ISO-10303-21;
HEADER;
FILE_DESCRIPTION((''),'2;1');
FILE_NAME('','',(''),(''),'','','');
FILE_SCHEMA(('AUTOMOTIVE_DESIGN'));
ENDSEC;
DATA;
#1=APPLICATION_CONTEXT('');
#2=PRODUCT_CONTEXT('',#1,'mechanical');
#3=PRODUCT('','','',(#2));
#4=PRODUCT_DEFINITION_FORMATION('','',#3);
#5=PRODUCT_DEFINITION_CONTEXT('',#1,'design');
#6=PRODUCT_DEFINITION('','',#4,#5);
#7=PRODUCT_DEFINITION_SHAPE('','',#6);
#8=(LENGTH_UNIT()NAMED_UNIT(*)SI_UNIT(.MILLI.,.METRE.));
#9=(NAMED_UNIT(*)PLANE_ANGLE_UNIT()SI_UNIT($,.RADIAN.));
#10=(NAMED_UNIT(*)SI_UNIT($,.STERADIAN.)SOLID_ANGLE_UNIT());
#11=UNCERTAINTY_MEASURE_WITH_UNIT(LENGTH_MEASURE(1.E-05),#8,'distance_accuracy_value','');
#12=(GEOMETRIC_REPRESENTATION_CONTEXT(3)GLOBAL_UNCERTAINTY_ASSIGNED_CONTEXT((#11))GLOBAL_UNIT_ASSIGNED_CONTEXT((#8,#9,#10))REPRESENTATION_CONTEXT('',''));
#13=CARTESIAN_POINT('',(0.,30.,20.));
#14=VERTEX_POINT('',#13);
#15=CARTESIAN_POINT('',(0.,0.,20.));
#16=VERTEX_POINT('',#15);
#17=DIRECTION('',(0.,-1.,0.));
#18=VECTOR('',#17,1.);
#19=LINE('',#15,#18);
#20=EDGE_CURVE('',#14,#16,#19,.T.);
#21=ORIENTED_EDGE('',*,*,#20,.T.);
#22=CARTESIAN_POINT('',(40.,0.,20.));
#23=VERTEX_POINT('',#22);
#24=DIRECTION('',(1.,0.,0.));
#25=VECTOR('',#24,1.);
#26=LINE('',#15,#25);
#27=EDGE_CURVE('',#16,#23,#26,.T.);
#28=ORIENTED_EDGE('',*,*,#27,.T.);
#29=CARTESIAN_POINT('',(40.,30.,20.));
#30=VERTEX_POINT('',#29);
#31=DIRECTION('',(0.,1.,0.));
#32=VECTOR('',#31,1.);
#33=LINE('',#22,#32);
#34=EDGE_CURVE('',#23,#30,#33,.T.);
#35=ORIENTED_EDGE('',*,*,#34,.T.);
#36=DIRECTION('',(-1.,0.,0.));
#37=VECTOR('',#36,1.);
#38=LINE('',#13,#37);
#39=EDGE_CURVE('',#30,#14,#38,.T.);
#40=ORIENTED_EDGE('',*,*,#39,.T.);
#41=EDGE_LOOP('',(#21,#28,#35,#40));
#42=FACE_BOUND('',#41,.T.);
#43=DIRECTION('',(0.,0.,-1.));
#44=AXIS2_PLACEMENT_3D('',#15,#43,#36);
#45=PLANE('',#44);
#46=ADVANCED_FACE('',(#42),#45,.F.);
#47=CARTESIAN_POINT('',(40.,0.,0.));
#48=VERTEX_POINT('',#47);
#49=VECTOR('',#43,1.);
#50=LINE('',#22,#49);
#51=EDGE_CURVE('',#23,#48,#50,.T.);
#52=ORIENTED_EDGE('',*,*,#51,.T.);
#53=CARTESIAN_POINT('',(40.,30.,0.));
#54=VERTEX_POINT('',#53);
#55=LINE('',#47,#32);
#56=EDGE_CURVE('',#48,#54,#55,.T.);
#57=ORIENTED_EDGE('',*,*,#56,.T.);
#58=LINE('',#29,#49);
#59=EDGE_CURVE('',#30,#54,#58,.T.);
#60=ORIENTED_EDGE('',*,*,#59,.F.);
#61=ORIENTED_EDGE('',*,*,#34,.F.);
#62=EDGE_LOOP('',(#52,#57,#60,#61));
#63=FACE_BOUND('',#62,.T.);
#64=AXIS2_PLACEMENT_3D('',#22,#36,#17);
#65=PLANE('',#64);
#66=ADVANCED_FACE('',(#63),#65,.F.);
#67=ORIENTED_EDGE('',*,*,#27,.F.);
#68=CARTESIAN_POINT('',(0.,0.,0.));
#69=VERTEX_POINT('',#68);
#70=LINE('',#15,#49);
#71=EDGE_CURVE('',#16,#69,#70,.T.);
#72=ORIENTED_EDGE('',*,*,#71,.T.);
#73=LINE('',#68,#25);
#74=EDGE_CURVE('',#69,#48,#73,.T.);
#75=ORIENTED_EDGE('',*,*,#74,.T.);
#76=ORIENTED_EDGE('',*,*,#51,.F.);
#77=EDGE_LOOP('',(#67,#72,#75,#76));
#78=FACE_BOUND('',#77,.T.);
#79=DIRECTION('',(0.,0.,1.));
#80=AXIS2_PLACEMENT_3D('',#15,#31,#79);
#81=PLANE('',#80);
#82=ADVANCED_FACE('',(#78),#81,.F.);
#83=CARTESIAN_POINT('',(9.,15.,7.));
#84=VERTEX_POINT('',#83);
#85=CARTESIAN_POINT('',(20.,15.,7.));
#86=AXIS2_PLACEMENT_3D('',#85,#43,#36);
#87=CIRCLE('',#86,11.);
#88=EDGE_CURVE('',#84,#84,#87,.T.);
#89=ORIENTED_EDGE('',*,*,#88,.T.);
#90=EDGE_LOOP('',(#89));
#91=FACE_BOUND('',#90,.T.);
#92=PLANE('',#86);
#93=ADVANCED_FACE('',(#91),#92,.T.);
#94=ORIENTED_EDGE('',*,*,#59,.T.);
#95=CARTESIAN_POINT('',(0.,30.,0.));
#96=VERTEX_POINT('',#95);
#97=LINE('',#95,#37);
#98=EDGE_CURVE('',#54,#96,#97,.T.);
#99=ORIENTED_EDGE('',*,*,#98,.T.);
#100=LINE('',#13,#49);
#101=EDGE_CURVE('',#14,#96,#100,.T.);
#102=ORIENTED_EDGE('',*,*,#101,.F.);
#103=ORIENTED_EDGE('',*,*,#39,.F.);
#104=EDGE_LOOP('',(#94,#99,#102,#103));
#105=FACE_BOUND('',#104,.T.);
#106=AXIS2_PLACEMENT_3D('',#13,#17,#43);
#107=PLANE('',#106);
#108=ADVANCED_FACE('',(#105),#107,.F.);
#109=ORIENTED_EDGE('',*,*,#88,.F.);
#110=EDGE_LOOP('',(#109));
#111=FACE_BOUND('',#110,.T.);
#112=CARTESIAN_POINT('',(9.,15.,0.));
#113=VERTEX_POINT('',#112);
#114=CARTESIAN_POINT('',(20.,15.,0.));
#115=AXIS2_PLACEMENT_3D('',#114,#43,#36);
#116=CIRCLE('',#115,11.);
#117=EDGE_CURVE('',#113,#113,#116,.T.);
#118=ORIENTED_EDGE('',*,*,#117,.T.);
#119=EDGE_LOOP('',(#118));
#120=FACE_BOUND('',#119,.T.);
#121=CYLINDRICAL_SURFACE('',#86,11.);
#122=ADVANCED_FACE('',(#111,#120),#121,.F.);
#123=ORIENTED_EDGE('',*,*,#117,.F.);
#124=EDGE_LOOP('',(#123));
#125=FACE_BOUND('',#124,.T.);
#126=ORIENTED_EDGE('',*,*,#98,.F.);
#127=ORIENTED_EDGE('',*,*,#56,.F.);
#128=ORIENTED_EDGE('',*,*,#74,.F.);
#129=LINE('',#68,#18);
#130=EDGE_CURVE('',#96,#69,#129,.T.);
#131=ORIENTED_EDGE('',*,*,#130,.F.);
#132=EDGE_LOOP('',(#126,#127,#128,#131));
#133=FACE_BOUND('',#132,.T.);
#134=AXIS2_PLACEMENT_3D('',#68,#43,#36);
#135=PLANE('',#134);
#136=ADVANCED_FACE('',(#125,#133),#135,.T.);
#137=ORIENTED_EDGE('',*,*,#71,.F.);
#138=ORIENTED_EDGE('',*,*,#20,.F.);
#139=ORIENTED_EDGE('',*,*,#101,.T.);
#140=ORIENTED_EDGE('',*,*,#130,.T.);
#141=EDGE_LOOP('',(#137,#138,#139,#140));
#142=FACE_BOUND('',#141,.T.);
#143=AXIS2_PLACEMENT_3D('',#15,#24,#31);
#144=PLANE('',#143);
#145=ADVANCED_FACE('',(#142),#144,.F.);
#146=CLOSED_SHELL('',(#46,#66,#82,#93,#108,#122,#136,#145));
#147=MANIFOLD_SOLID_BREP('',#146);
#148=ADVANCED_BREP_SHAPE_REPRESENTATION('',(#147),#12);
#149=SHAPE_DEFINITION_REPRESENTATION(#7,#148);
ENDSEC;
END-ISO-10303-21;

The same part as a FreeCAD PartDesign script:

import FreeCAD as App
import Part
import Sketcher

V = App.Vector
Q = App.Units.Quantity


def add_polygon(sketch, points):
    """Adds a closed chain of lines whose ends are joined by coincident constraints."""
    first, n = sketch.GeometryCount, len(points)
    for a, b in zip(points, points[1:] + points[:1]):
        sketch.addGeometry(Part.LineSegment(App.Vector(*a, 0), App.Vector(*b, 0)), False)
    for i in range(n):
        sketch.addConstraint(Sketcher.Constraint("Coincident", first + i, 2, first + (i + 1) % n, 1))

doc = App.newDocument("Part")
body = doc.addObject("PartDesign::Body", "Body")

# Sketch on XY plane
sketch1 = doc.addObject("Sketcher::SketchObject", "Sketch")
body.addObject(sketch1)
sketch1.AttachmentSupport = (doc.XY_Plane, [""])
sketch1.MapMode = "FlatFace"
add_polygon(sketch1, [(0, 30), (0, 0), (40, 0), (40, 30)])  # lines 0-3
sketch1.addConstraint(Sketcher.Constraint("Vertical", 0))
sketch1.addConstraint(Sketcher.Constraint("Horizontal", 1))
sketch1.addConstraint(Sketcher.Constraint("Vertical", 2))
sketch1.addConstraint(Sketcher.Constraint("Horizontal", 3))
sketch1.addConstraint(Sketcher.Constraint("Coincident", 0, 2, -1, 1))
sketch1.addConstraint(Sketcher.Constraint("DistanceX", 1, 1, 1, 2, Q("40 mm")))
sketch1.addConstraint(Sketcher.Constraint("DistanceY", 0, 2, 0, 1, Q("30 mm")))
pad1 = doc.addObject("PartDesign::Pad", "Pad")
body.addObject(pad1)
pad1.Profile = sketch1
pad1.Length = 20

# Sketch on XY plane
sketch2 = doc.addObject("Sketcher::SketchObject", "Sketch001")
body.addObject(sketch2)
sketch2.AttachmentSupport = (doc.XY_Plane, [""])
sketch2.MapMode = "FlatFace"
sketch2.addGeometry(Part.Circle(V(20, 15, 0), V(0, 0, 1), 11), False)
sketch2.addConstraint(Sketcher.Constraint("Diameter", 0, Q("22 mm")))
sketch2.addConstraint(Sketcher.Constraint("DistanceX", -1, 1, 0, 3, Q("20 mm")))
sketch2.addConstraint(Sketcher.Constraint("DistanceY", -1, 1, 0, 3, Q("15 mm")))
pocket1 = doc.addObject("PartDesign::Pocket", "Pocket")
body.addObject(pocket1)
pocket1.Profile = sketch2
pocket1.Length = 7
pocket1.Reversed = True

doc.recompute()
